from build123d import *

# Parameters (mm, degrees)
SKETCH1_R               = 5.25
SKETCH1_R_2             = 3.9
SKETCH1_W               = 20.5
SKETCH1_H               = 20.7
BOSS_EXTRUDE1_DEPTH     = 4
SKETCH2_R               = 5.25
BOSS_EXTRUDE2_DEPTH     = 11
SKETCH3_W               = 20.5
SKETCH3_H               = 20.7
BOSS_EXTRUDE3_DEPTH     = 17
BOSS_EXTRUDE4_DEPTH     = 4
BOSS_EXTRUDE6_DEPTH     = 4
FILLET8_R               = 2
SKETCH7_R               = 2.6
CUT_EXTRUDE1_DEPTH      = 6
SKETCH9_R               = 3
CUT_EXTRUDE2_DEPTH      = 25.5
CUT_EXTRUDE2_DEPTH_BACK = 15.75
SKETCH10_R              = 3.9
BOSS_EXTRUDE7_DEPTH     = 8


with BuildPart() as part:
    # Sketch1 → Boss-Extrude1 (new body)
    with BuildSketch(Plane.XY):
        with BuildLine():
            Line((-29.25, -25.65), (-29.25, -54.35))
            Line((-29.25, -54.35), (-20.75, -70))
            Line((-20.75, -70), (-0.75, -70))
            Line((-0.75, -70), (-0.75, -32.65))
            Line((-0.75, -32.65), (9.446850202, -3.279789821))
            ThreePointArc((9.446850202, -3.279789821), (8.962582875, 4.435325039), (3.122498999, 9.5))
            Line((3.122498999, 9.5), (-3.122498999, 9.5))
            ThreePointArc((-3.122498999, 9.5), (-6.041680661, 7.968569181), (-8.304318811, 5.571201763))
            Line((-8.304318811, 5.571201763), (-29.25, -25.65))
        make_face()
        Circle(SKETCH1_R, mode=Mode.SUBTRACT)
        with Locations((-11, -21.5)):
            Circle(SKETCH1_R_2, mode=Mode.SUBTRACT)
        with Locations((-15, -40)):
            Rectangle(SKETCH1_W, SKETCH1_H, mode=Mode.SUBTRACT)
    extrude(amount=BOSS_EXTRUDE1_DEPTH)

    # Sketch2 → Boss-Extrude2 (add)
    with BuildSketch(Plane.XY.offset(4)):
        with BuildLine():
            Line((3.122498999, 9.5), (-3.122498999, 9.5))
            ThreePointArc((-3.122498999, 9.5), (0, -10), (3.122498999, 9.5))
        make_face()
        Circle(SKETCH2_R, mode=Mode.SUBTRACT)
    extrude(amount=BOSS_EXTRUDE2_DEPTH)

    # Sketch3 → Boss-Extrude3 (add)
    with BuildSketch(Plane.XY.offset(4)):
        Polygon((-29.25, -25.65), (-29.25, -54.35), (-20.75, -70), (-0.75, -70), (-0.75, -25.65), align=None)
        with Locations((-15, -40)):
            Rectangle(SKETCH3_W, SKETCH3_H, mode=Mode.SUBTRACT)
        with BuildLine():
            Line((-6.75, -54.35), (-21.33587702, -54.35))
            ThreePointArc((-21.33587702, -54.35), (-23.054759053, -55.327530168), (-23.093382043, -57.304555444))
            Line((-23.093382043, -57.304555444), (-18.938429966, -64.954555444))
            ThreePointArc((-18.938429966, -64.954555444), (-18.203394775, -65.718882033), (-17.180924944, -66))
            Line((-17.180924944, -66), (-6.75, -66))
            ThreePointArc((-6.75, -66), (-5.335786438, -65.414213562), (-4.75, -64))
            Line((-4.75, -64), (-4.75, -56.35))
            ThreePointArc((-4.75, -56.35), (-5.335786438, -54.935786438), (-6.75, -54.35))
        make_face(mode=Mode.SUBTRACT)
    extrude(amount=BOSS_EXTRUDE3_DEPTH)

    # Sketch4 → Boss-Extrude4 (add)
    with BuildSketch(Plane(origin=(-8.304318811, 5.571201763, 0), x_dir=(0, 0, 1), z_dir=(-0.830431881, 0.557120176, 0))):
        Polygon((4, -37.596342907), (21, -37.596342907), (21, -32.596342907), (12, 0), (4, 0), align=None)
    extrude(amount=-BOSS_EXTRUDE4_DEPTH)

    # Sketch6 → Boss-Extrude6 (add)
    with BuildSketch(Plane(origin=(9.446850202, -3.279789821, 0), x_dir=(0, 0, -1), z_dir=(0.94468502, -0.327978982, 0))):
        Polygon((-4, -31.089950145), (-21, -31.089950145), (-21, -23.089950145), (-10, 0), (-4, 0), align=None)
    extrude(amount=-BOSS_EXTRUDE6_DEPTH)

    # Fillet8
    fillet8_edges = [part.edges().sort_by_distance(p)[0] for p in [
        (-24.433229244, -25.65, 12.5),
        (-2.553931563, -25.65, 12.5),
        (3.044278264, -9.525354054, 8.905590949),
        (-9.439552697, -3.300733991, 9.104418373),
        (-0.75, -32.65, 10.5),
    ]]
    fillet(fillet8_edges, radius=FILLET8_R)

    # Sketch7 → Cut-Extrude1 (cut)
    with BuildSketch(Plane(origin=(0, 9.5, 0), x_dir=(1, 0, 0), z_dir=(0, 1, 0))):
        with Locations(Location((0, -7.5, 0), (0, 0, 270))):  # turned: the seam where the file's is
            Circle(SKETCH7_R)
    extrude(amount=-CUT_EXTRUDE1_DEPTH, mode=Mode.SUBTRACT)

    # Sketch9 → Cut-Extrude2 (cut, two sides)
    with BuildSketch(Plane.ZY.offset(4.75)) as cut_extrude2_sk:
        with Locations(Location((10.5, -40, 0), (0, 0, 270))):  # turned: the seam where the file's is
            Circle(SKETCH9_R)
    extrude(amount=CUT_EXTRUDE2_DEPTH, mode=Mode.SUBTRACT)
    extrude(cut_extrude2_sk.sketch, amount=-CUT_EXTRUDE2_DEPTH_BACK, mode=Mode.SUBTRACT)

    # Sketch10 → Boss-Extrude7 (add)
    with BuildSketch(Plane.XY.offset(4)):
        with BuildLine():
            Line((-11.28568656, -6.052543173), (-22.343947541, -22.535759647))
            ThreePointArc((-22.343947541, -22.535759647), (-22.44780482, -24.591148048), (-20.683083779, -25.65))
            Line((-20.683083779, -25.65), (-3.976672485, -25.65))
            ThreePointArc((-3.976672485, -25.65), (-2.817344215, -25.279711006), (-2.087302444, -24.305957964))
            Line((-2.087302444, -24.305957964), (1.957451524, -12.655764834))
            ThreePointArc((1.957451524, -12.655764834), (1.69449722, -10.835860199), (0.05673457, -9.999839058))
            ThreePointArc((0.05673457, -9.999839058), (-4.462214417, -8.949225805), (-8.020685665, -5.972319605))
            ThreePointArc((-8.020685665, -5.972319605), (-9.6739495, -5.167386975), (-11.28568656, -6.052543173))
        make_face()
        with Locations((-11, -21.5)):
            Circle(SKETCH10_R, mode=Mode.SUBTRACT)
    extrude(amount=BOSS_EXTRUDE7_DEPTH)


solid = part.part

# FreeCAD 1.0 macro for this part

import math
import FreeCAD as App
import Part
import Sketcher
from FreeCAD import Vector
Q = App.Units.Quantity


def edges_at(feature, points):
    """Names of the edges that pass closest to the given points."""
    edges = feature.Shape.Edges
    near = lambda p: min(range(len(edges)), key=lambda i: edges[i].distToShape(Part.Vertex(*p))[0])
    return sorted({f"Edge{near(p) + 1}" for p in points})


def add_polygon(sketch, points):
    """Adds a closed chain of lines whose ends are joined by coincident constraints."""
    first, n = sketch.GeometryCount, len(points)
    for a, b in zip(points, points[1:] + points[:1]):
        sketch.addGeometry(Part.LineSegment(App.Vector(*a, 0), App.Vector(*b, 0)), False)
    for i in range(n):
        sketch.addConstraint(Sketcher.Constraint("Coincident", first + i, 2, first + (i + 1) % n, 1))

doc = App.newDocument("Part")
body = doc.addObject("PartDesign::Body", "Body")

# Sketch on XY plane
sketch1 = body.newObject("Sketcher::SketchObject", "Sketch")
sketch1.AttachmentSupport = (doc.getObject("XY_Plane"), [""])
sketch1.MapMode = "FlatFace"
sketch1.addGeometry(Part.LineSegment(Vector(-29.25, -25.65, 0), Vector(-29.25, -54.35, 0)), False)  # 0
sketch1.addGeometry(Part.LineSegment(Vector(-29.25, -54.35, 0), Vector(-20.75, -70, 0)), False)  # 1
sketch1.addGeometry(Part.LineSegment(Vector(-20.75, -70, 0), Vector(-0.75, -70, 0)), False)  # 2
sketch1.addGeometry(Part.LineSegment(Vector(-0.75, -70, 0), Vector(-0.75, -32.65, 0)), False)  # 3
sketch1.addGeometry(Part.LineSegment(Vector(-0.75, -32.65, 0), Vector(9.44685, -3.27979, 0)), False)  # 4
sketch1.addGeometry(Part.ArcOfCircle(Part.Circle(Vector(0, 0, 0), Vector(0, 0, 1), 10), math.radians(-19.146154), math.radians(71.805128)), False)  # 5
sketch1.addGeometry(Part.LineSegment(Vector(3.122499, 9.5, 0), Vector(-3.122499, 9.5, 0)), False)  # 6
sketch1.addGeometry(Part.ArcOfCircle(Part.Circle(Vector(0, 0, 0), Vector(0, 0, 1), 10), math.radians(108.194872), math.radians(146.143128)), False)  # 7
sketch1.addGeometry(Part.LineSegment(Vector(-8.304319, 5.571202, 0), Vector(-29.25, -25.65, 0)), False)  # 8
add_polygon(sketch1, [(-4.75, -50.35), (-25.25, -50.35), (-25.25, -29.65), (-4.75, -29.65)])  # lines 9-12
sketch1.addGeometry(Part.Circle(Vector(-11, -21.5, 0), Vector(0, 0, 1), 3.9), False)  # 13
sketch1.addGeometry(Part.Circle(Vector(0, 0, 0), Vector(0, 0, 1), 5.25), False)  # 14
sketch1.addConstraint([
    Sketcher.Constraint("Coincident", 0, 2, 1, 1),
    Sketcher.Constraint("Coincident", 1, 2, 2, 1),
    Sketcher.Constraint("Coincident", 2, 2, 3, 1),
    Sketcher.Constraint("Coincident", 3, 2, 4, 1),
    Sketcher.Constraint("Tangent", 4, 2, 5, 1),
    Sketcher.Constraint("Coincident", 5, 2, 6, 1),
    Sketcher.Constraint("Coincident", 6, 2, 7, 1),
    Sketcher.Constraint("Tangent", 7, 2, 8, 1),
    Sketcher.Constraint("Coincident", 8, 2, 0, 1),
    Sketcher.Constraint("Vertical", 0),
    Sketcher.Constraint("Horizontal", 2),
    Sketcher.Constraint("Vertical", 3),
    Sketcher.Constraint("Horizontal", 6),
    Sketcher.Constraint("Horizontal", 9),
    Sketcher.Constraint("Vertical", 10),
    Sketcher.Constraint("Horizontal", 11),
    Sketcher.Constraint("Vertical", 12),
    Sketcher.Constraint("Coincident", 5, 3, -1, 1),
    Sketcher.Constraint("Coincident", 7, 3, -1, 1),
    Sketcher.Constraint("Coincident", 14, 3, -1, 1),
    Sketcher.Constraint("Equal", 5, 7),
    Sketcher.Constraint("Radius", 5, Q("10 mm")),
    Sketcher.Constraint("Diameter", 13, Q("7.8 mm")),
    Sketcher.Constraint("Diameter", 14, Q("10.5 mm")),
    Sketcher.Constraint("DistanceX", 2, 1, 2, 2, Q("20 mm")),
    Sketcher.Constraint("DistanceX", 9, 2, 9, 1, Q("20.5 mm")),
    Sketcher.Constraint("DistanceY", 0, 2, 0, 1, Q("28.7 mm")),
    Sketcher.Constraint("DistanceY", 10, 1, 10, 2, Q("20.7 mm")),
    Sketcher.Constraint("DistanceX", 13, 3, -1, 1, Q("11 mm")),
    Sketcher.Constraint("DistanceY", 1, 2, -1, 1, Q("70 mm")),
    Sketcher.Constraint("DistanceY", 13, 3, 5, 2, Q("31 mm")),
    Sketcher.Constraint("DistanceY", 3, 2, 8, 2, Q("7 mm")),
    Sketcher.Constraint("DistanceX", 0, 2, 9, 2, Q("4 mm")),
    Sketcher.Constraint("DistanceY", 0, 2, 9, 2, Q("4 mm")),
    Sketcher.Constraint("DistanceX", 11, 2, 3, 2, Q("4 mm")),
    Sketcher.Constraint("DistanceY", 3, 1, 3, 2, Q("37.35 mm")),
    Sketcher.Constraint("DistanceY", 13, 3, -1, 1, Q("21.5 mm")),
    Sketcher.Constraint("DistanceX", 0, 2, -1, 1, Q("29.25 mm")),
])
pad1 = body.newObject("PartDesign::Pad", "Pad")
pad1.Profile = sketch1
pad1.Length = 4

# Sketch on XY plane
sketch2 = body.newObject("Sketcher::SketchObject", "Sketch001")
sketch2.AttachmentSupport = (doc.getObject("XY_Plane"), [""])
sketch2.MapMode = "FlatFace"
sketch2.AttachmentOffset = App.Placement(Vector(0, 0, 4), App.Rotation())
sketch2.addGeometry([
    Part.LineSegment(Vector(3.122499, 9.5, 0), Vector(-3.122499, 9.5, 0)),
    Part.ArcOfCircle(Part.Circle(Vector(0, 0, 0), Vector(0, 0, 1), 10), math.radians(108.194872), math.radians(431.805128)),
    Part.Circle(Vector(0, 0, 0), Vector(0, 0, 1), 5.25),
], False)
sketch2.addConstraint([
    Sketcher.Constraint("Coincident", 0, 1, 1, 2),
    Sketcher.Constraint("Coincident", 1, 1, 0, 2),
    Sketcher.Constraint("Horizontal", 0),
    Sketcher.Constraint("Coincident", 1, 3, -1, 1),
    Sketcher.Constraint("Coincident", 2, 3, -1, 1),
    Sketcher.Constraint("Radius", 1, Q("10 mm")),
    Sketcher.Constraint("Diameter", 2, Q("10.5 mm")),
    Sketcher.Constraint("DistanceY", -1, 1, 0, 1, Q("9.5 mm")),
])
pad2 = body.newObject("PartDesign::Pad", "Pad001")
pad2.Profile = sketch2
pad2.Length = 11

# Sketch on XY plane
sketch3 = body.newObject("Sketcher::SketchObject", "Sketch002")
sketch3.AttachmentSupport = (doc.getObject("XY_Plane"), [""])
sketch3.MapMode = "FlatFace"
sketch3.AttachmentOffset = App.Placement(Vector(0, 0, 4), App.Rotation())
add_polygon(sketch3, [(-29.25, -25.65), (-29.25, -54.35), (-20.75, -70), (-0.75, -70), (-0.75, -25.65)])  # lines 0-4
sketch3.addGeometry(Part.LineSegment(Vector(-21.335877, -54.35, 0), Vector(-6.75, -54.35, 0)), False)  # 5
sketch3.addGeometry(Part.ArcOfCircle(Part.Circle(Vector(-6.75, -56.35, 0), Vector(0, 0, 1), 2), math.radians(0), math.radians(90)), False)  # 6
sketch3.addGeometry(Part.LineSegment(Vector(-4.75, -56.35, 0), Vector(-4.75, -64, 0)), False)  # 7
sketch3.addGeometry(Part.ArcOfCircle(Part.Circle(Vector(-6.75, -64, 0), Vector(0, 0, 1), 2), math.radians(-90), math.radians(0)), False)  # 8
sketch3.addGeometry(Part.LineSegment(Vector(-6.75, -66, 0), Vector(-17.180925, -66, 0)), False)  # 9
sketch3.addGeometry(Part.ArcOfCircle(Part.Circle(Vector(-17.180925, -64, 0), Vector(0, 0, 1), 2), math.radians(-151.492244), math.radians(-90)), False)  # 10
sketch3.addGeometry(Part.LineSegment(Vector(-18.93843, -64.954555, 0), Vector(-23.093382, -57.304555, 0)), False)  # 11
sketch3.addGeometry(Part.ArcOfCircle(Part.Circle(Vector(-21.335877, -56.35, 0), Vector(0, 0, 1), 2), math.radians(90), math.radians(208.507756)), False)  # 12
add_polygon(sketch3, [(-4.75, -50.35), (-25.25, -50.35), (-25.25, -29.65), (-4.75, -29.65)])  # lines 13-16
sketch3.addConstraint([
    Sketcher.Constraint("Tangent", 5, 2, 6, 2),
    Sketcher.Constraint("Tangent", 6, 1, 7, 1),
    Sketcher.Constraint("Tangent", 7, 2, 8, 2),
    Sketcher.Constraint("Tangent", 8, 1, 9, 1),
    Sketcher.Constraint("Tangent", 9, 2, 10, 2),
    Sketcher.Constraint("Tangent", 10, 1, 11, 1),
    Sketcher.Constraint("Tangent", 11, 2, 12, 2),
    Sketcher.Constraint("Tangent", 12, 1, 5, 1),
    Sketcher.Constraint("Vertical", 0),
    Sketcher.Constraint("Horizontal", 2),
    Sketcher.Constraint("Vertical", 3),
    Sketcher.Constraint("Horizontal", 4),
    Sketcher.Constraint("Horizontal", 5),
    Sketcher.Constraint("Vertical", 7),
    Sketcher.Constraint("Horizontal", 9),
    Sketcher.Constraint("Horizontal", 13),
    Sketcher.Constraint("Vertical", 14),
    Sketcher.Constraint("Horizontal", 15),
    Sketcher.Constraint("Vertical", 16),
    Sketcher.Constraint("Equal", 6, 8),
    Sketcher.Constraint("Equal", 8, 10),
    Sketcher.Constraint("Equal", 10, 12),
    Sketcher.Constraint("Parallel", 1, 11),
    Sketcher.Constraint("Horizontal", 0, 2, 5, 2),
    Sketcher.Constraint("Vertical", 7, 2, 15, 2),
    Sketcher.Constraint("Radius", 6, Q("2 mm")),
    Sketcher.Constraint("DistanceX", 2, 1, 2, 2, Q("20 mm")),
    Sketcher.Constraint("DistanceX", 4, 2, 4, 1, Q("28.5 mm")),
    Sketcher.Constraint("DistanceX", 13, 2, 13, 1, Q("20.5 mm")),
    Sketcher.Constraint("DistanceY", 0, 2, 0, 1, Q("28.7 mm")),
    Sketcher.Constraint("DistanceY", 14, 1, 14, 2, Q("20.7 mm")),
    Sketcher.Constraint("DistanceY", 8, 3, -1, 1, Q("64 mm")),
    Sketcher.Constraint("DistanceY", 1, 2, -1, 1, Q("70 mm")),
    Sketcher.Constraint("DistanceX", 1, 2, 8, 3, Q("14 mm")),
    Sketcher.Constraint("DistanceY", 12, 1, 13, 2, Q("4 mm")),
    Sketcher.Constraint("DistanceY", 3, 1, 3, 2, Q("44.35 mm")),
    Sketcher.Constraint("DistanceX", 6, 3, -1, 1, Q("6.75 mm")),
    Sketcher.Constraint("DistanceX", 5, 1, 5, 2, Q("14.585877 mm")),
])
pad3 = body.newObject("PartDesign::Pad", "Pad002")
pad3.Profile = sketch3
pad3.Length = 17

# Sketch on an angled plane
sketch4 = body.newObject("Sketcher::SketchObject", "Sketch003")
sketch4.Placement = App.Placement(Vector(-8.304319, 5.571202, 0), App.Rotation(Vector(0, 0, 1), Vector(0.557120176, 0.830431881, 0), Vector(-0.830431881, 0.557120176, 0), "ZXY"))
add_polygon(sketch4, [(4, -37.596343), (21, -37.596343), (21, -32.596343), (12, 0), (4, 0)])  # lines 0-4
sketch4.addConstraint([
    Sketcher.Constraint("Horizontal", 0),
    Sketcher.Constraint("Vertical", 1),
    Sketcher.Constraint("Horizontal", 3),
    Sketcher.Constraint("Vertical", 4),
    Sketcher.Constraint("PointOnObject", 2, 2, -1),
    Sketcher.Constraint("DistanceX", 0, 1, 0, 2, Q("17 mm")),
    Sketcher.Constraint("DistanceX", 3, 2, 3, 1, Q("8 mm")),
    Sketcher.Constraint("DistanceY", 1, 1, 1, 2, Q("5 mm")),
    Sketcher.Constraint("DistanceX", -1, 1, 0, 2, Q("21 mm")),
    Sketcher.Constraint("DistanceY", 4, 2, 4, 1, Q("37.596343 mm")),
])
pad4 = body.newObject("PartDesign::Pad", "Pad003")
pad4.Profile = sketch4
pad4.Length = 4
pad4.Reversed = True

# Sketch on an angled plane
sketch5 = body.newObject("Sketcher::SketchObject", "Sketch004")
sketch5.Placement = App.Placement(Vector(9.44685, -3.27979, 0), App.Rotation(Vector(0, 0, -1), Vector(0.327978982, 0.94468502, 0), Vector(0.94468502, -0.327978982, 0), "ZXY"))
add_polygon(sketch5, [(-21, -31.08995), (-4, -31.08995), (-4, 0), (-10, 0), (-21, -23.08995)])  # lines 0-4
sketch5.addConstraint([
    Sketcher.Constraint("Horizontal", 0),
    Sketcher.Constraint("Vertical", 1),
    Sketcher.Constraint("Horizontal", 2),
    Sketcher.Constraint("Vertical", 4),
    Sketcher.Constraint("PointOnObject", 1, 2, -1),
    Sketcher.Constraint("DistanceX", 0, 1, 0, 2, Q("17 mm")),
    Sketcher.Constraint("DistanceX", 2, 2, 2, 1, Q("6 mm")),
    Sketcher.Constraint("DistanceY", 4, 2, 4, 1, Q("8 mm")),
    Sketcher.Constraint("DistanceX", 0, 2, -1, 1, Q("4 mm")),
    Sketcher.Constraint("DistanceY", 1, 1, 1, 2, Q("31.08995 mm")),
])
pad5 = body.newObject("PartDesign::Pad", "Pad004")
pad5.Profile = sketch5
pad5.Length = 4
pad5.Reversed = True
doc.recompute()

fillet = body.newObject("PartDesign::Fillet", "Fillet")
fillet.Base = (pad5, edges_at(pad5, [
    (-24.433, -25.65, 12.5),
    (-2.554, -25.65, 12.5),
    (3.044, -9.525, 8.906),
    (-9.44, -3.301, 9.104),
    (-0.75, -32.65, 12.5),
]))
fillet.Radius = 2

# Sketch on XZ plane
sketch6 = body.newObject("Sketcher::SketchObject", "Sketch005")
sketch6.AttachmentSupport = (doc.getObject("XZ_Plane"), [""])
sketch6.MapMode = "FlatFace"
sketch6.AttachmentOffset = App.Placement(Vector(0, 0, -9.5), App.Rotation())
sketch6.addGeometry(Part.Circle(Vector(0, 7.5, 0), Vector(0, 0, 1), 2.6), False)
sketch6.addConstraint([
    Sketcher.Constraint("PointOnObject", 0, 3, -2),
    Sketcher.Constraint("Diameter", 0, Q("5.2 mm")),
    Sketcher.Constraint("DistanceY", -1, 1, 0, 3, Q("7.5 mm")),
])
pocket1 = body.newObject("PartDesign::Pocket", "Pocket")
pocket1.Profile = sketch6
pocket1.Length = 6
pocket1.Reversed = True

# Sketch on YZ plane
sketch7 = body.newObject("Sketcher::SketchObject", "Sketch006")
sketch7.AttachmentSupport = (doc.getObject("YZ_Plane"), [""])
sketch7.MapMode = "FlatFace"
sketch7.AttachmentOffset = App.Placement(Vector(0, 0, -4.75), App.Rotation())
sketch7.addGeometry(Part.Circle(Vector(-40, 10.5, 0), Vector(0, 0, 1), 3), False)
sketch7.addConstraint([
    Sketcher.Constraint("Diameter", 0, Q("6 mm")),
    Sketcher.Constraint("DistanceX", 0, 3, -1, 1, Q("40 mm")),
    Sketcher.Constraint("DistanceY", -1, 1, 0, 3, Q("10.5 mm")),
])
pocket2 = body.newObject("PartDesign::Pocket", "Pocket001")
pocket2.Profile = sketch7
pocket2.Type = "ThroughAll"
pocket2.Midplane = True

# Sketch on XY plane
sketch8 = body.newObject("Sketcher::SketchObject", "Sketch007")
sketch8.AttachmentSupport = (doc.getObject("XY_Plane"), [""])
sketch8.MapMode = "FlatFace"
sketch8.AttachmentOffset = App.Placement(Vector(0, 0, 4), App.Rotation())
sketch8.addGeometry([
    Part.LineSegment(Vector(-11.285687, -6.052543, 0), Vector(-22.343948, -22.53576, 0)),  # 0
    Part.ArcOfCircle(Part.Circle(Vector(-20.683084, -23.65, 0), Vector(0, 0, 1), 2), math.radians(146.143128), math.radians(270)),  # 1
    Part.LineSegment(Vector(-20.683084, -25.65, 0), Vector(-3.976672, -25.65, 0)),  # 2
    Part.ArcOfCircle(Part.Circle(Vector(-3.976672, -23.65, 0), Vector(0, 0, 1), 2), math.radians(-90), math.radians(-19.146154)),  # 3
    Part.LineSegment(Vector(-2.087302, -24.305958, 0), Vector(1.957452, -12.655765, 0)),  # 4
    Part.ArcOfCircle(Part.Circle(Vector(0.068081, -11.999807, 0), Vector(0, 0, 1), 2), math.radians(-19.146154), math.radians(90.325067)),  # 5
    Part.ArcOfCircle(Part.Circle(Vector(0, 0, 0), Vector(0, 0, 1), 10), math.radians(-143.328092), math.radians(-89.674933)),  # 6
    Part.ArcOfCircle(Part.Circle(Vector(-9.624823, -7.166784, 0), Vector(0, 0, 1), 2), math.radians(36.671908), math.radians(146.143128)),  # 7
    Part.Circle(Vector(-11, -21.5, 0), Vector(0, 0, 1), 3.9),  # 8
], False)
sketch8.addConstraint([
    Sketcher.Constraint("Tangent", 0, 2, 1, 1),
    Sketcher.Constraint("Tangent", 1, 2, 2, 1),
    Sketcher.Constraint("Tangent", 2, 2, 3, 1),
    Sketcher.Constraint("Tangent", 3, 2, 4, 1),
    Sketcher.Constraint("Tangent", 4, 2, 5, 1),
    Sketcher.Constraint("Tangent", 5, 2, 6, 2),
    Sketcher.Constraint("Tangent", 6, 1, 7, 1),
    Sketcher.Constraint("Tangent", 7, 2, 0, 1),
    Sketcher.Constraint("Horizontal", 2),
    Sketcher.Constraint("Coincident", 6, 3, -1, 1),
    Sketcher.Constraint("Equal", 1, 3),
    Sketcher.Constraint("Equal", 3, 5),
    Sketcher.Constraint("Equal", 5, 7),
    Sketcher.Constraint("Radius", 1, Q("2 mm")),
    Sketcher.Constraint("Radius", 6, Q("10 mm")),
    Sketcher.Constraint("Diameter", 8, Q("7.8 mm")),
    Sketcher.Constraint("DistanceX", 8, 3, -1, 1, Q("11 mm")),
    Sketcher.Constraint("DistanceY", 8, 3, -1, 1, Q("21.5 mm")),
    Sketcher.Constraint("DistanceY", 1, 3, -1, 1, Q("23.65 mm")),
    Sketcher.Constraint("DistanceX", 7, 2, 6, 1, Q("3.265001 mm")),
    Sketcher.Constraint("DistanceX", 2, 1, 2, 2, Q("16.706411 mm")),
    Sketcher.Constraint("Distance", 0, Q("19.848969 mm")),
    Sketcher.Constraint("DistanceX", -1, 1, 5, 3, Q("0.068081 mm")),
])
pad6 = body.newObject("PartDesign::Pad", "Pad005")
pad6.Profile = sketch8
pad6.Length = 8

doc.recompute()
